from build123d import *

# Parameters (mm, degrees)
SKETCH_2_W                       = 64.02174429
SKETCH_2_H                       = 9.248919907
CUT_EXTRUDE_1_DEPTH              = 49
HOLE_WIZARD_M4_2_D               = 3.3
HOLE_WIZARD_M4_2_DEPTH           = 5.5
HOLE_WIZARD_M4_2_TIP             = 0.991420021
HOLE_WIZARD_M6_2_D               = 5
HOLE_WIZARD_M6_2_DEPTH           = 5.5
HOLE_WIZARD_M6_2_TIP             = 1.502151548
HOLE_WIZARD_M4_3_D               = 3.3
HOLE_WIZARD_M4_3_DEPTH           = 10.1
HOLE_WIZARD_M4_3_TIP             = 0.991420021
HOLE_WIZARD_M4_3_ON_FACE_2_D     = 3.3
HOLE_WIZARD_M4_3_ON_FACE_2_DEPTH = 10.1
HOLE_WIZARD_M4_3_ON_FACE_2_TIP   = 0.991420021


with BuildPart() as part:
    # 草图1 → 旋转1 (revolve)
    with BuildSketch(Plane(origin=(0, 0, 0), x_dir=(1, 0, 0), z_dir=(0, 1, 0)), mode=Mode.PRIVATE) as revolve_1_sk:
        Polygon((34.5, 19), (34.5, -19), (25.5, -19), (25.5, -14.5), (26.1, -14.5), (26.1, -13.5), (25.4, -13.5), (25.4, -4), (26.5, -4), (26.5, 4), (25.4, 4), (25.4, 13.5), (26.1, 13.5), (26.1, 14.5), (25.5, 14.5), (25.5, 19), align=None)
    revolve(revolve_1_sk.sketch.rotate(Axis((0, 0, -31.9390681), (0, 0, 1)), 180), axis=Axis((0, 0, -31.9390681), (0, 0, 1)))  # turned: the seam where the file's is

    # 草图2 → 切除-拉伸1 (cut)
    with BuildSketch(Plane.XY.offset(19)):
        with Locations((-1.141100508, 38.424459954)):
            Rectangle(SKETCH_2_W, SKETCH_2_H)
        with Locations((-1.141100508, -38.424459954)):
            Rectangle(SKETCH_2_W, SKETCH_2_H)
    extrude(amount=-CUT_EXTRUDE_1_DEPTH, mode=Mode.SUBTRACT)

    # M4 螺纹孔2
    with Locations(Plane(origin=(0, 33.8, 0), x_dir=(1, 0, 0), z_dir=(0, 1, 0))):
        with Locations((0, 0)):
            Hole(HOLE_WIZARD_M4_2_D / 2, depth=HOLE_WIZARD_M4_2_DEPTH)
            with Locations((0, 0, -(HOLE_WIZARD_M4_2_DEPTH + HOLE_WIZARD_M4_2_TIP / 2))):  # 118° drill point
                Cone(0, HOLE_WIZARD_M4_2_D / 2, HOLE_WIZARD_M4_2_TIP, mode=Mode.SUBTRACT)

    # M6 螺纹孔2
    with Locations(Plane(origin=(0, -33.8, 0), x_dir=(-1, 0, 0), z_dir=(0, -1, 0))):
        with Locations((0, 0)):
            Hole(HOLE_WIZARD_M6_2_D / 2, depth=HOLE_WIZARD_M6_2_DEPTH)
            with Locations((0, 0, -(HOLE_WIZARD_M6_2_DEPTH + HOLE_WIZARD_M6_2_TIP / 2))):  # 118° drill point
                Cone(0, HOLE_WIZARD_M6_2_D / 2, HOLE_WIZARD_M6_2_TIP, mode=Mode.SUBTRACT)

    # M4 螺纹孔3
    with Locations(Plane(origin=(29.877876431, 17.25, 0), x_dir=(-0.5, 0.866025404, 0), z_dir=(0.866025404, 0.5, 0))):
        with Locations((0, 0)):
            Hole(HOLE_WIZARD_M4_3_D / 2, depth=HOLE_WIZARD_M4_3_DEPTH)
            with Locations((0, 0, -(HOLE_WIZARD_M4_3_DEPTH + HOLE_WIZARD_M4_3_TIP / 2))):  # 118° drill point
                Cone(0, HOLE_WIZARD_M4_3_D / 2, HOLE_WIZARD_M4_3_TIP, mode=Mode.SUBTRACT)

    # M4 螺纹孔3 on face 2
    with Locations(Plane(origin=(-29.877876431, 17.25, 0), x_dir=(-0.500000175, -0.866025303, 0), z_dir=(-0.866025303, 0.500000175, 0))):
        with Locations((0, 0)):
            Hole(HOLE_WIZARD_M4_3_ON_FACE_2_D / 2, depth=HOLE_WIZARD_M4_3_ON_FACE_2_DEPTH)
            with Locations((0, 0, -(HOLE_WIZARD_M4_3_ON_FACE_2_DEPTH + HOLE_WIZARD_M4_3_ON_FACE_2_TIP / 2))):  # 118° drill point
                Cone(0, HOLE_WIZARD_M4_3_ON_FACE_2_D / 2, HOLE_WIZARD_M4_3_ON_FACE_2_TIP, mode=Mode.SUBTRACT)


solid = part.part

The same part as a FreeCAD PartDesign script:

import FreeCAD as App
import Part
import Sketcher
from FreeCAD import Vector


def add_polygon(sketch, points):
    """Adds a closed chain of lines whose ends are joined by coincident constraints."""
    first, n = sketch.GeometryCount, len(points)
    for a, b in zip(points, points[1:] + points[:1]):
        sketch.addGeometry(Part.LineSegment(App.Vector(*a, 0), App.Vector(*b, 0)), False)
    for i in range(n):
        sketch.addConstraint(Sketcher.Constraint("Coincident", first + i, 2, first + (i + 1) % n, 1))

doc = App.newDocument("Part")
body = doc.addObject("PartDesign::Body", "Body")

sketch1 = body.newObject("Sketcher::SketchObject", "Sketch")
sketch1.AttachmentSupport = (doc.getObject("XZ_Plane"), [""])
sketch1.MapMode = "FlatFace"
add_polygon(sketch1, [(34.5, 19), (34.5, -19), (25.5, -19), (25.5, -14.5), (26.1, -14.5), (26.1, -13.5), (25.4, -13.5), (25.4, -4), (26.5, -4), (26.5, 4), (25.4, 4), (25.4, 13.5), (26.1, 13.5), (26.1, 14.5), (25.5, 14.5), (25.5, 19)])
sketch1.addConstraint([
    Sketcher.Constraint("Vertical", 0),
    Sketcher.Constraint("Horizontal", 1),
    Sketcher.Constraint("Vertical", 2),
    Sketcher.Constraint("Horizontal", 3),
    Sketcher.Constraint("Vertical", 4),
    Sketcher.Constraint("Horizontal", 5),
    Sketcher.Constraint("Vertical", 6),
    Sketcher.Constraint("Horizontal", 7),
    Sketcher.Constraint("Vertical", 8),
    Sketcher.Constraint("Horizontal", 9),
    Sketcher.Constraint("Vertical", 10),
    Sketcher.Constraint("Horizontal", 11),
    Sketcher.Constraint("Vertical", 12),
    Sketcher.Constraint("Horizontal", 13),
    Sketcher.Constraint("Vertical", 14),
    Sketcher.Constraint("Horizontal", 15),
    Sketcher.Constraint("Symmetric", 6, 2, 9, 2, -1),
    Sketcher.Constraint("Symmetric", 4, 2, 11, 2, -1),
    Sketcher.Constraint("Symmetric", 2, 2, 13, 2, -1),
    Sketcher.Constraint("Equal", 2, 14),
    Sketcher.Constraint("DistanceX", 1, 2, 1, 1, 9.0),
    Sketcher.Constraint("DistanceY", 0, 2, 0, 1, 38.0),
    Sketcher.Constraint("DistanceY", 4, 1, 4, 2, 1.0),
    Sketcher.Constraint("DistanceY", 8, 1, 8, 2, 8.0),
    Sketcher.Constraint("DistanceX", 3, 1, 3, 2, 0.6),
    Sketcher.Constraint("DistanceX", 5, 2, 5, 1, 0.7),
    Sketcher.Constraint("DistanceX", 7, 1, 7, 2, 1.1),
    Sketcher.Constraint("DistanceY", 2, 1, 2, 2, 4.5),
    Sketcher.Constraint("DistanceX", -1, 1, 0, 2, 34.5),
])
revolution = body.newObject("PartDesign::Revolution", "Revolution")
revolution.Profile = sketch1
revolution.ReferenceAxis = (sketch1, ["V_Axis"])
revolution.Angle = 360

sketch2 = body.newObject("Sketcher::SketchObject", "Sketch001")
sketch2.AttachmentSupport = (doc.getObject("XY_Plane"), [""])
sketch2.MapMode = "FlatFace"
sketch2.AttachmentOffset = App.Placement(Vector(0, 0, 19), App.Rotation())
add_polygon(sketch2, [(-33, 43), (-33, 34), (31, 34), (31, 43)])
add_polygon(sketch2, [(-33, -34), (-33, -43), (31, -43), (31, -34)])
sketch2.addConstraint([
    Sketcher.Constraint("Vertical", 0),
    Sketcher.Constraint("Horizontal", 1),
    Sketcher.Constraint("Vertical", 2),
    Sketcher.Constraint("Horizontal", 3),
    Sketcher.Constraint("Vertical", 4),
    Sketcher.Constraint("Horizontal", 5),
    Sketcher.Constraint("Vertical", 6),
    Sketcher.Constraint("Horizontal", 7),
    Sketcher.Constraint("Symmetric", 3, 2, 4, 2, -1),
    Sketcher.Constraint("Symmetric", 1, 2, 6, 2, -1),
    Sketcher.Constraint("DistanceY", -1, 1, 0, 2, 33.8),
    Sketcher.Constraint("DistanceY", 0, 2, 0, 1, 9.24892),
    Sketcher.Constraint("DistanceX", 1, 1, 1, 2, 64.021744),
    Sketcher.Constraint("DistanceX", -1, 1, 1, 2, 30.869772),
])
pocket1 = body.newObject("PartDesign::Pocket", "Pocket")
pocket1.Profile = sketch2
pocket1.Length = 49

sketch3 = body.newObject("Sketcher::SketchObject", "Sketch002")
sketch3.AttachmentSupport = (doc.getObject("XZ_Plane"), [""])
sketch3.MapMode = "FlatFace"
sketch3.AttachmentOffset = App.Placement(Vector(0, 0, -33.8), App.Rotation())
sketch3.addGeometry(Part.Circle(Vector(0, 0, 0), Vector(0, 0, 1), 1.6), False)
sketch3.addConstraint([
    Sketcher.Constraint("Coincident", 0, 3, -1, 1),
    Sketcher.Constraint("Diameter", 0, 3.3),
])
doc.recompute()
hole = body.newObject("PartDesign::Hole", "Hole")
hole.Profile = sketch3
hole.ThreadType = "None"
hole.Diameter = 3.3
hole.DepthType = "Dimension"
hole.Depth = 5.5
hole.DrillPoint = "Angled"
hole.DrillPointAngle = 118
hole.Reversed = True

sketch4 = body.newObject("Sketcher::SketchObject", "Sketch003")
sketch4.AttachmentSupport = (doc.getObject("XZ_Plane"), [""])
sketch4.MapMode = "FlatFace"
sketch4.AttachmentOffset = App.Placement(Vector(0, 0, 33.8), App.Rotation())
sketch4.addGeometry(Part.Circle(Vector(0, 0, 0), Vector(0, 0, 1), 2.5), False)
sketch4.addConstraint([
    Sketcher.Constraint("Coincident", 0, 3, -1, 1),
    Sketcher.Constraint("Diameter", 0, 5.0),
])
doc.recompute()
hole2 = body.newObject("PartDesign::Hole", "Hole001")
hole2.Profile = sketch4
hole2.ThreadType = "None"
hole2.Diameter = 5
hole2.DepthType = "Dimension"
hole2.Depth = 5.5
hole2.DrillPoint = "Angled"
hole2.DrillPointAngle = 118

sketch5 = body.newObject("Sketcher::SketchObject", "Sketch004")
sketch5.Placement = App.Placement(Vector(29.877876, 17.25, 0), App.Rotation(Vector(-0.5, 0.866025404, 0), Vector(0, 0, 1), Vector(0.866025404, 0.5, 0), "ZXY"))
sketch5.addGeometry(Part.Circle(Vector(0, 0, 0), Vector(0, 0, 1), 1.6), False)
sketch5.addConstraint([
    Sketcher.Constraint("Coincident", 0, 3, -1, 1),
    Sketcher.Constraint("Diameter", 0, 3.3),
])
doc.recompute()
hole3 = body.newObject("PartDesign::Hole", "Hole002")
hole3.Profile = sketch5
hole3.ThreadType = "None"
hole3.Diameter = 3.3
hole3.DepthType = "Dimension"
hole3.Depth = 10.1
hole3.DrillPoint = "Angled"
hole3.DrillPointAngle = 118

sketch6 = body.newObject("Sketcher::SketchObject", "Sketch005")
sketch6.Placement = App.Placement(Vector(-29.877873, 17.250006, 0), App.Rotation(Vector(-0.500000175, -0.866025303, 0), Vector(0, 0, 1), Vector(-0.866025303, 0.500000175, 0), "ZXY"))
sketch6.addGeometry(Part.Circle(Vector(0, 0, 0), Vector(0, 0, 1), 1.6), False)
sketch6.addConstraint([
    Sketcher.Constraint("Coincident", 0, 3, -1, 1),
    Sketcher.Constraint("Diameter", 0, 3.3),
])
doc.recompute()
hole4 = body.newObject("PartDesign::Hole", "Hole003")
hole4.Profile = sketch6
hole4.ThreadType = "None"
hole4.Diameter = 3.3
hole4.DepthType = "Dimension"
hole4.Depth = 10.1
hole4.DrillPoint = "Angled"
hole4.DrillPointAngle = 118

doc.recompute()
